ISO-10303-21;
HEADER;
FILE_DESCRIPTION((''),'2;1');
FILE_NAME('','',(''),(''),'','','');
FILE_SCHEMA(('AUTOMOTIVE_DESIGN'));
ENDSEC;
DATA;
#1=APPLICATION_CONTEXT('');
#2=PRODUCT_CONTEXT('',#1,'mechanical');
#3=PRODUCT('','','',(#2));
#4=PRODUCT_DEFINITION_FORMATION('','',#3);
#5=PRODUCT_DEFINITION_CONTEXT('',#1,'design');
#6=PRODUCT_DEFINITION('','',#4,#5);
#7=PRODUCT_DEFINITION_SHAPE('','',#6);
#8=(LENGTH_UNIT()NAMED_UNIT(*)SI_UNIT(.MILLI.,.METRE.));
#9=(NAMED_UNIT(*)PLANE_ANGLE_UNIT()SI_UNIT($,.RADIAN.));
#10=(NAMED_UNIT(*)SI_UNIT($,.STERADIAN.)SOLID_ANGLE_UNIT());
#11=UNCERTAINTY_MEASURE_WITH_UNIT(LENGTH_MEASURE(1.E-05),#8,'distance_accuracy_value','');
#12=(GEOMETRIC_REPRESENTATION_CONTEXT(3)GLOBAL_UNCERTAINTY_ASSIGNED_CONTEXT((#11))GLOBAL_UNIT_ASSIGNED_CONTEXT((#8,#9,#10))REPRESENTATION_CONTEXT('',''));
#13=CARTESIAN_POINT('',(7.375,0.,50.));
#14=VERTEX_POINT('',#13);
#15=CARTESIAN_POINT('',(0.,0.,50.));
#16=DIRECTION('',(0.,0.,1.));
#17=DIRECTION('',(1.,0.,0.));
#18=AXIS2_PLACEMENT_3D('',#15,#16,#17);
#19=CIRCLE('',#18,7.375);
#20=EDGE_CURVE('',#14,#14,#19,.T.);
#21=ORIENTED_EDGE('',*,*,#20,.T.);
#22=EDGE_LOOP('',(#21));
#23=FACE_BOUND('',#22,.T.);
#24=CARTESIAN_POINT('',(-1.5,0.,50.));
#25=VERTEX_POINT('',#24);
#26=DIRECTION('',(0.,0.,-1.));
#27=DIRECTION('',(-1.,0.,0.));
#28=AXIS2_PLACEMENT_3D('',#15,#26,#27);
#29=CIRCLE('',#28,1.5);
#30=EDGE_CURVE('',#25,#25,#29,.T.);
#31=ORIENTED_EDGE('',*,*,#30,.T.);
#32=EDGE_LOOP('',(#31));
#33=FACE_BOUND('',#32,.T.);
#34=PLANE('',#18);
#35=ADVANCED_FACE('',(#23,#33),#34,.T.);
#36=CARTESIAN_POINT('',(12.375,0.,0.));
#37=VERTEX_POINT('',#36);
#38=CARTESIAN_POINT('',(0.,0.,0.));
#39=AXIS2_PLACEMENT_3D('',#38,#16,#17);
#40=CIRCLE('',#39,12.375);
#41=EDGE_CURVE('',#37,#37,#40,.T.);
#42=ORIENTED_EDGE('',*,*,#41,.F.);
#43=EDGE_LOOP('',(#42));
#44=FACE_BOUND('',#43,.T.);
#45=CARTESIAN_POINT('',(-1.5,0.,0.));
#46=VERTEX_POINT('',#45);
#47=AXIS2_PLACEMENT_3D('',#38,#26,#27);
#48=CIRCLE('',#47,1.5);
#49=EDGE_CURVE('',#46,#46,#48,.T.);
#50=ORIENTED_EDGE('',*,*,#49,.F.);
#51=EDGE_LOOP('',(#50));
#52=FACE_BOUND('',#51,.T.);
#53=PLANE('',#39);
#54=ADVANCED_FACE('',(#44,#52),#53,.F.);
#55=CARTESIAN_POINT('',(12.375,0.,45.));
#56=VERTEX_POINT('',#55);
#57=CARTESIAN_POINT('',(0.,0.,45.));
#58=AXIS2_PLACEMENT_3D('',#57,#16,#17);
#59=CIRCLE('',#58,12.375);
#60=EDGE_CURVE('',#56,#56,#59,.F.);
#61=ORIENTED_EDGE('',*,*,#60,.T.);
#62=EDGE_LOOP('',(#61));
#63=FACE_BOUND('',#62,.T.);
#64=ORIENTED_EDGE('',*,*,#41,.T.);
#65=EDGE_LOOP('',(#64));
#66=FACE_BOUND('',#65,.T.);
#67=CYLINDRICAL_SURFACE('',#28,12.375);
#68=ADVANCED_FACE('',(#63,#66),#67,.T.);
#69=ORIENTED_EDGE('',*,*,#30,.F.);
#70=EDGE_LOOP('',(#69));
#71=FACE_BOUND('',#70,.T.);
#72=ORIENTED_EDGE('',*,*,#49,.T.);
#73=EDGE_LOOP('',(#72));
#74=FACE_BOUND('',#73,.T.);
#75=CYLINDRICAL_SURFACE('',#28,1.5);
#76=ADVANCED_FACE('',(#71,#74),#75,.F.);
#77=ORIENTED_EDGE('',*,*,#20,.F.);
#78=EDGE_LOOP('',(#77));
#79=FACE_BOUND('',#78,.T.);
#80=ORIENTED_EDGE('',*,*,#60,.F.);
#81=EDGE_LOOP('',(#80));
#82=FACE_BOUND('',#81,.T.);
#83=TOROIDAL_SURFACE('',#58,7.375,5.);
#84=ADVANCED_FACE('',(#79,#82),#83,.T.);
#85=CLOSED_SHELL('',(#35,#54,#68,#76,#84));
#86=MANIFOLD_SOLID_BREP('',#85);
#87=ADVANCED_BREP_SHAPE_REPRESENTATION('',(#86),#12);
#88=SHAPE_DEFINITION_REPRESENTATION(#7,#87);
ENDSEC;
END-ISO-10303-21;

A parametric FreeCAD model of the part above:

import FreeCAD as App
import Part
import Sketcher
Q = App.Units.Quantity


def edges_at(feature, points):
    """Names of the edges that pass closest to the given points."""
    edges = feature.Shape.Edges
    near = lambda p: min(range(len(edges)), key=lambda i: edges[i].distToShape(Part.Vertex(*p))[0])
    return sorted({f"Edge{near(p) + 1}" for p in points})

doc = App.newDocument("Part")
body = doc.addObject("PartDesign::Body", "Body")

# Sketch on XY plane
sketch1 = doc.addObject("Sketcher::SketchObject", "Sketch")
body.addObject(sketch1)
sketch1.AttachmentSupport = (doc.XY_Plane, [""])
sketch1.MapMode = "FlatFace"
sketch1.addGeometry(Part.Circle(App.Vector(0, 0, 0), App.Vector(0, 0, 1), 12), False)
sketch1.addConstraint([
    Sketcher.Constraint("Coincident", 0, 3, -1, 1),
    Sketcher.Constraint("Diameter", 0, Q("24.75 mm")),
])
pad1 = doc.addObject("PartDesign::Pad", "Pad")
body.addObject(pad1)
pad1.Profile = sketch1
pad1.Length = 50
doc.recompute()

fillet = doc.addObject("PartDesign::Fillet", "Fillet")
body.addObject(fillet)
fillet.Base = (pad1, edges_at(pad1, [(-12.375, 0, 50)]))
fillet.Radius = 5

# Sketch on XY plane
sketch2 = doc.addObject("Sketcher::SketchObject", "Sketch001")
body.addObject(sketch2)
sketch2.AttachmentSupport = (doc.XY_Plane, [""])
sketch2.MapMode = "FlatFace"
sketch2.addGeometry(Part.Circle(App.Vector(0, 0, 0), App.Vector(0, 0, 1), 1.5), False)
sketch2.addConstraint([
    Sketcher.Constraint("Coincident", 0, 3, -1, 1),
    Sketcher.Constraint("Diameter", 0, Q("3 mm")),
])
pocket1 = doc.addObject("PartDesign::Pocket", "Pocket")
body.addObject(pocket1)
pocket1.Profile = sketch2
pocket1.Type = "ThroughAll"
pocket1.Reversed = True

doc.recompute()
